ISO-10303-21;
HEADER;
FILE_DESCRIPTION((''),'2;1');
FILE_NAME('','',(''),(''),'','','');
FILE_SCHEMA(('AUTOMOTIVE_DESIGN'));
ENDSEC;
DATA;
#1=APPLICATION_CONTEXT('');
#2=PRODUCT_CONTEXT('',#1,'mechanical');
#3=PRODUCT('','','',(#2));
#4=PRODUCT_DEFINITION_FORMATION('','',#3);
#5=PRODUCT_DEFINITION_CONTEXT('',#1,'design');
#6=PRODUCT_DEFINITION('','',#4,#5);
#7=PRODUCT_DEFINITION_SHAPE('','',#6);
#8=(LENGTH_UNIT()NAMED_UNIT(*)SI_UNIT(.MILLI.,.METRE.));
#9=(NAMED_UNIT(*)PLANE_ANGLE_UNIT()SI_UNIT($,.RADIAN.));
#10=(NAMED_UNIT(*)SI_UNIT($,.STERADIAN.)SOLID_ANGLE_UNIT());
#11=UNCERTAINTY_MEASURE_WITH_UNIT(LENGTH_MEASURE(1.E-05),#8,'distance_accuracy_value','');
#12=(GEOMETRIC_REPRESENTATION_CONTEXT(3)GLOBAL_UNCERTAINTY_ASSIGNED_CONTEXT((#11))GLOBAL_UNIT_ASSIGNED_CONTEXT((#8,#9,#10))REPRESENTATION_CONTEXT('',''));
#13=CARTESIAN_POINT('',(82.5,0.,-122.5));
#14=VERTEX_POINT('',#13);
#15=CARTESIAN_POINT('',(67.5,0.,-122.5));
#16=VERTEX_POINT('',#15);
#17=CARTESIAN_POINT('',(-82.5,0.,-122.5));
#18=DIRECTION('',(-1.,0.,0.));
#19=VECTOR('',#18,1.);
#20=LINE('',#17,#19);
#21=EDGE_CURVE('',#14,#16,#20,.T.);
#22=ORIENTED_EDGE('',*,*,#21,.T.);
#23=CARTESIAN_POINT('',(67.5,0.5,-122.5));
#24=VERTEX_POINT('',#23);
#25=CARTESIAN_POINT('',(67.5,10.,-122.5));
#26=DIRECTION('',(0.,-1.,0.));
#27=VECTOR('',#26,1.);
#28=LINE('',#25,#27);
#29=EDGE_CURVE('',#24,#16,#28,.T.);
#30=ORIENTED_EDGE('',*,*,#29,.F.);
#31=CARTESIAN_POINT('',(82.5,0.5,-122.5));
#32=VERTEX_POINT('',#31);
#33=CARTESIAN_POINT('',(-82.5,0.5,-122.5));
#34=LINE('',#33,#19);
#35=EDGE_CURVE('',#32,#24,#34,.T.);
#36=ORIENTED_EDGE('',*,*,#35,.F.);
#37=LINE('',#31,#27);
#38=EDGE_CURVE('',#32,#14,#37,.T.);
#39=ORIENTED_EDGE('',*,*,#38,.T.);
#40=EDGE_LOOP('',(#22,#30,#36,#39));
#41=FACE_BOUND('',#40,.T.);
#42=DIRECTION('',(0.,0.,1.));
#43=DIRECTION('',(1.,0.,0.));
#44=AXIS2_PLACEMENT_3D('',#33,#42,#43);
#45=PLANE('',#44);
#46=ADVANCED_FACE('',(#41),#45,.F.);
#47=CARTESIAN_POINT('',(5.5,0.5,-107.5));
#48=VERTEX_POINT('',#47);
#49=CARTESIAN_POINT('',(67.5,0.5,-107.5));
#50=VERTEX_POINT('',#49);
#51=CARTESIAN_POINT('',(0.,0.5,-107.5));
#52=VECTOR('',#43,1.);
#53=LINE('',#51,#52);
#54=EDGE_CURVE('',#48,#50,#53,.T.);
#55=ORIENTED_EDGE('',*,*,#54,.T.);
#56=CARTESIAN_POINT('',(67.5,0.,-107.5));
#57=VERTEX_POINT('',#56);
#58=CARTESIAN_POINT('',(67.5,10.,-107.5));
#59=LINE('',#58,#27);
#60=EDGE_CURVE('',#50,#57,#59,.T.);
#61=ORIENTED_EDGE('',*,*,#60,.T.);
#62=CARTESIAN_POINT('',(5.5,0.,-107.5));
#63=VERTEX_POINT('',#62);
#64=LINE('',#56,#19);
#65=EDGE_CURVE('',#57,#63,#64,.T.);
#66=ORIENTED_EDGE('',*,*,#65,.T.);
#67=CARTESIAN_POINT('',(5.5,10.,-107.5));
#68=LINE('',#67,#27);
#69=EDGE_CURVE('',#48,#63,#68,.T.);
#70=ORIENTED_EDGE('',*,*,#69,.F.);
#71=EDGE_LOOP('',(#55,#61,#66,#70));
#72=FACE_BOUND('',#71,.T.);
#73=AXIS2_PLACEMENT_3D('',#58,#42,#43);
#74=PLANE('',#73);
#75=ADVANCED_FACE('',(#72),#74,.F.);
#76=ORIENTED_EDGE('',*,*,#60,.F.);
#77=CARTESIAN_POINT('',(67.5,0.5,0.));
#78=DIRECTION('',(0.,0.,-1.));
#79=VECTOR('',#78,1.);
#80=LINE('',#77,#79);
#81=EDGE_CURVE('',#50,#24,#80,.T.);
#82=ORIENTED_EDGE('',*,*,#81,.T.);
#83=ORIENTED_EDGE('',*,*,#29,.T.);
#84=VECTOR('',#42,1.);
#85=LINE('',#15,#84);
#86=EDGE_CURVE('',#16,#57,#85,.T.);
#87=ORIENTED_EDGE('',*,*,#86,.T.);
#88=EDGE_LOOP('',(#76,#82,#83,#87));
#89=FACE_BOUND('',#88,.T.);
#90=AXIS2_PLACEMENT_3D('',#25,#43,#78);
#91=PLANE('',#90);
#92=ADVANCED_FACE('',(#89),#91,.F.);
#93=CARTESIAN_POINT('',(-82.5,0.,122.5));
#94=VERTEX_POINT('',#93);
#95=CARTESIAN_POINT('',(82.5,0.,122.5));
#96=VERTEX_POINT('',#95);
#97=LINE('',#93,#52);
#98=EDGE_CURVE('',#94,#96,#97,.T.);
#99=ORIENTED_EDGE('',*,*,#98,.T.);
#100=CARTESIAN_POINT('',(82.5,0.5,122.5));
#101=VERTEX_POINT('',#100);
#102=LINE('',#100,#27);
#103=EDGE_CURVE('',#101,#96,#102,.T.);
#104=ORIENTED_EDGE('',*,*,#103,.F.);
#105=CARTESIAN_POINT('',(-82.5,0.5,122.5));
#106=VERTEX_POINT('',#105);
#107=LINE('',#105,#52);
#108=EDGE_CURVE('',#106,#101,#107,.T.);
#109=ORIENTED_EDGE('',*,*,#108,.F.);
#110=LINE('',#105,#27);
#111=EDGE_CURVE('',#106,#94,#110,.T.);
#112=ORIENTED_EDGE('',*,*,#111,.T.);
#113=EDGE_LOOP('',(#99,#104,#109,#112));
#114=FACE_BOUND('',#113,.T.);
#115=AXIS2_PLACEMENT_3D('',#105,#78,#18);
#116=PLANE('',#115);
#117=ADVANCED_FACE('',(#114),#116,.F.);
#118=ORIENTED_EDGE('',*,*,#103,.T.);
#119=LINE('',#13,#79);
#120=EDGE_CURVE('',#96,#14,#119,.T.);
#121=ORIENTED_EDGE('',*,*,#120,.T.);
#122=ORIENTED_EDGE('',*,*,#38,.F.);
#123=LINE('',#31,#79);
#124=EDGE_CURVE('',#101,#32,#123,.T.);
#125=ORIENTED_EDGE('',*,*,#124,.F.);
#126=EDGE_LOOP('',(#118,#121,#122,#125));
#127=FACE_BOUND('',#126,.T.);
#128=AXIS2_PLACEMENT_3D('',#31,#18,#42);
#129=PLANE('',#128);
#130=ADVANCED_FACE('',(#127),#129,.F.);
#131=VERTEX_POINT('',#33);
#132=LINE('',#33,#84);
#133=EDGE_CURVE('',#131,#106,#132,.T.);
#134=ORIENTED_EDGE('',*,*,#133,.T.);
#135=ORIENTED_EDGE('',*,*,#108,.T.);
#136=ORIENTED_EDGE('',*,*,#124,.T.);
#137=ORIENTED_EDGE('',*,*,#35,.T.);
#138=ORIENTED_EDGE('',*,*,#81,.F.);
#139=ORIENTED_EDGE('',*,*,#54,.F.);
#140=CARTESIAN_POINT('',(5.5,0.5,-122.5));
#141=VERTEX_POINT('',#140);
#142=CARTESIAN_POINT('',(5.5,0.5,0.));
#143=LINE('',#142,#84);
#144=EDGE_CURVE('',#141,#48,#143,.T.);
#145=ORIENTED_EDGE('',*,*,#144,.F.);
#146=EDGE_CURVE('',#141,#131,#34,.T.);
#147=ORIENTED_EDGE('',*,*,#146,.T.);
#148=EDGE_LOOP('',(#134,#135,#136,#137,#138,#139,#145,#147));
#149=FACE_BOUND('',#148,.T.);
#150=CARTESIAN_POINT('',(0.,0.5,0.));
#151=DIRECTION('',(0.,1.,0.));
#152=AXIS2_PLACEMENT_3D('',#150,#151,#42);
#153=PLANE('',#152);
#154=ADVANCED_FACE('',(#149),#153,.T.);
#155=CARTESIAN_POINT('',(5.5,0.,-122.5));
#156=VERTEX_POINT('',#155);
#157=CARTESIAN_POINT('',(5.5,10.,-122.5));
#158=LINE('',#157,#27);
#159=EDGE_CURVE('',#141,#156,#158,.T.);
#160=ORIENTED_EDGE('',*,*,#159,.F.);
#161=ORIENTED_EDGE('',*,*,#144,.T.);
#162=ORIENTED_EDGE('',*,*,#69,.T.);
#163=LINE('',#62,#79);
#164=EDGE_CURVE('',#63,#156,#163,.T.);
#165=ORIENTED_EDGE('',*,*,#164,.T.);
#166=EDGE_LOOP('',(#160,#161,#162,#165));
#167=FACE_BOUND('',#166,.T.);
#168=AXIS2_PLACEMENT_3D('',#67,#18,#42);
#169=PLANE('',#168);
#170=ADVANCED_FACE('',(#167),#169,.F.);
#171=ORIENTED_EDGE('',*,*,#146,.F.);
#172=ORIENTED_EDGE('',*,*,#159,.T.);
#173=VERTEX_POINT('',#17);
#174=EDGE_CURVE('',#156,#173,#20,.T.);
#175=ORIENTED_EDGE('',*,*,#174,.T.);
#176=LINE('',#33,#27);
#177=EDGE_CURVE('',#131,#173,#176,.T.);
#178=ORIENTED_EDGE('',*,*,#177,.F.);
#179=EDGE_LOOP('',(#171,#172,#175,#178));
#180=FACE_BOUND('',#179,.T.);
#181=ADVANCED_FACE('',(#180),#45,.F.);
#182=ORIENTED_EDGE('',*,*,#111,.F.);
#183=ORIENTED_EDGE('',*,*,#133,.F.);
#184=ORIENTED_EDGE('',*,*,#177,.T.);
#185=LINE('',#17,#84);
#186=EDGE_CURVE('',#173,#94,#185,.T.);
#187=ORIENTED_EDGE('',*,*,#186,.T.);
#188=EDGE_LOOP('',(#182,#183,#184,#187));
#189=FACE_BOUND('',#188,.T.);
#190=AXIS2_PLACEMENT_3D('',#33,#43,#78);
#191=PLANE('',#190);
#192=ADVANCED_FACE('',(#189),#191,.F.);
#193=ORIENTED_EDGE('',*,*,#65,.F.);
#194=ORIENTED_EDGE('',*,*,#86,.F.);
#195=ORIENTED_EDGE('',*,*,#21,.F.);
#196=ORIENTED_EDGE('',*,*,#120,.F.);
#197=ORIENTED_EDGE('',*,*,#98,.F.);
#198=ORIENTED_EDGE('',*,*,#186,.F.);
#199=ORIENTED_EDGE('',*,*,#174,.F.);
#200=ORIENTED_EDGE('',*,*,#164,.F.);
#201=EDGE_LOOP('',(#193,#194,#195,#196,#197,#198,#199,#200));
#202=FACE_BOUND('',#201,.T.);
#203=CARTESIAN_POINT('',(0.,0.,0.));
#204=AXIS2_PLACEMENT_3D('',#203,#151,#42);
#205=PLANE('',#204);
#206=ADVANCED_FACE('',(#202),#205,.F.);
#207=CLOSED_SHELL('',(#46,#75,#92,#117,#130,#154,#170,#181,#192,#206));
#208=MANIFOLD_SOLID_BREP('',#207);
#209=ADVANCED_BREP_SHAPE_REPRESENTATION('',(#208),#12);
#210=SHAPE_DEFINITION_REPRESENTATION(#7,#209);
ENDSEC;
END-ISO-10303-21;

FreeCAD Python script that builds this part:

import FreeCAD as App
import Part
import Sketcher

V = App.Vector

doc = App.newDocument("Part")
body = doc.addObject("PartDesign::Body", "Body")

sketch1 = body.newObject("Sketcher::SketchObject", "Sketch")
sketch1.AttachmentSupport = (doc.getObject("XZ_Plane"), [""])
sketch1.MapMode = "FlatFace"
sketch1.addGeometry([
    Part.LineSegment(V(-82, -122, 0), V(-82, 122, 0)),
    Part.LineSegment(V(-82, 122, 0), V(82, 122, 0)),
    Part.LineSegment(V(82, 122, 0), V(82, -122, 0)),
    Part.LineSegment(V(82, -122, 0), V(-82, -122, 0)),
], False)
sketch1.addConstraint([
    Sketcher.Constraint("Coincident", 0, 2, 1, 1),
    Sketcher.Constraint("Coincident", 1, 2, 2, 1),
    Sketcher.Constraint("Coincident", 2, 2, 3, 1),
    Sketcher.Constraint("Coincident", 3, 2, 0, 1),
    Sketcher.Constraint("Vertical", 0),
    Sketcher.Constraint("Horizontal", 1),
    Sketcher.Constraint("Vertical", 2),
    Sketcher.Constraint("Horizontal", 3),
    Sketcher.Constraint("Symmetric", 0, 2, 2, 2, -1, 1),
    Sketcher.Constraint("DistanceX", 1, 1, 1, 2, 165.0),
    Sketcher.Constraint("DistanceY", 0, 1, 0, 2, 245.0),
])
pad1 = body.newObject("PartDesign::Pad", "Pad")
pad1.Profile = sketch1
pad1.Length = 0.5
pad1.Reversed = True

sketch2 = body.newObject("Sketcher::SketchObject", "Sketch001")
sketch2.AttachmentSupport = (doc.getObject("XZ_Plane"), [""])
sketch2.MapMode = "FlatFace"
sketch2.addGeometry([
    Part.LineSegment(V(6, -108, 0), V(6, -122, 0)),
    Part.LineSegment(V(6, -122, 0), V(68, -122, 0)),
    Part.LineSegment(V(68, -122, 0), V(68, -108, 0)),
    Part.LineSegment(V(68, -108, 0), V(6, -108, 0)),
], False)
sketch2.addConstraint([
    Sketcher.Constraint("Coincident", 0, 2, 1, 1),
    Sketcher.Constraint("Coincident", 1, 2, 2, 1),
    Sketcher.Constraint("Coincident", 2, 2, 3, 1),
    Sketcher.Constraint("Coincident", 3, 2, 0, 1),
    Sketcher.Constraint("Vertical", 0),
    Sketcher.Constraint("Horizontal", 1),
    Sketcher.Constraint("Vertical", 2),
    Sketcher.Constraint("Horizontal", 3),
    Sketcher.Constraint("DistanceX", 1, 1, 1, 2, 62.0),
    Sketcher.Constraint("DistanceY", 0, 2, 0, 1, 15.0),
    Sketcher.Constraint("DistanceX", -1, 1, 0, 2, 5.5),
    Sketcher.Constraint("DistanceY", 0, 2, -1, 1, 122.5),
])
pocket1 = body.newObject("PartDesign::Pocket", "Pocket")
pocket1.Profile = sketch2
pocket1.Length = 10

doc.recompute()
